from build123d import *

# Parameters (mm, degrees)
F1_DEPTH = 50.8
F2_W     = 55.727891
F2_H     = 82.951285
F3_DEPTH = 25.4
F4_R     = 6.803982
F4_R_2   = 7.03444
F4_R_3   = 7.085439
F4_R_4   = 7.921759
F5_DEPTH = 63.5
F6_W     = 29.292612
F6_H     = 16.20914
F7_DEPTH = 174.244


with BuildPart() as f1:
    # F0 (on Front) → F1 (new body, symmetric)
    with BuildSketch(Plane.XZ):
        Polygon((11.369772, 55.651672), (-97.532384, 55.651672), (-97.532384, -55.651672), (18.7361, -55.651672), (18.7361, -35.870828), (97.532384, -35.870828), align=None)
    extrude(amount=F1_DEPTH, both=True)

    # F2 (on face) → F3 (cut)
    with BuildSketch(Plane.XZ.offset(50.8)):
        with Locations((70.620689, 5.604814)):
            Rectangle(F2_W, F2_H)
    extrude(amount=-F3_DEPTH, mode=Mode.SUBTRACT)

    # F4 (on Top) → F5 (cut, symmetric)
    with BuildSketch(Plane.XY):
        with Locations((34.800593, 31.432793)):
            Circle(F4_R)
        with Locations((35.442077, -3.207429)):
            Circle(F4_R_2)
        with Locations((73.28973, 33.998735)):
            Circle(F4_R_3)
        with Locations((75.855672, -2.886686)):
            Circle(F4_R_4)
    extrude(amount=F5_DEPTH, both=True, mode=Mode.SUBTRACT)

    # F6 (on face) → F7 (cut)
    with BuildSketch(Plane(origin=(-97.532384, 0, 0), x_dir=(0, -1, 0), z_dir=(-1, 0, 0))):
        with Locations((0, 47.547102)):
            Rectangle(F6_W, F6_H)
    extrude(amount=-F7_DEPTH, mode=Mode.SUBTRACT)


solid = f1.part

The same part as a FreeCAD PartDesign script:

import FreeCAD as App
import Part
import Sketcher

V = App.Vector
Q = App.Units.Quantity

doc = App.newDocument("Part")
body = doc.addObject("PartDesign::Body", "Body")

# Sketch on XZ plane
sketch1 = body.newObject("Sketcher::SketchObject", "Sketch")
sketch1.AttachmentSupport = (doc.getObject("XZ_Plane"), [""])
sketch1.MapMode = "FlatFace"
sketch1.addGeometry(Part.LineSegment(V(11.369772, 55.651672, 0), V(-97.532384, 55.651672, 0)), False)
sketch1.addGeometry(Part.LineSegment(V(-97.532384, 55.651672, 0), V(-97.532384, -55.651672, 0)), False)
sketch1.addGeometry(Part.LineSegment(V(-97.532384, -55.651672, 0), V(18.7361, -55.651672, 0)), False)
sketch1.addGeometry(Part.LineSegment(V(18.7361, -55.651672, 0), V(18.7361, -35.870828, 0)), False)
sketch1.addGeometry(Part.LineSegment(V(18.7361, -35.870828, 0), V(97.532384, -35.870828, 0)), False)
sketch1.addGeometry(Part.LineSegment(V(97.532384, -35.870828, 0), V(11.369772, 55.651672, 0)), False)
sketch1.addConstraint(Sketcher.Constraint("Coincident", 0, 2, 1, 1))
sketch1.addConstraint(Sketcher.Constraint("Coincident", 1, 2, 2, 1))
sketch1.addConstraint(Sketcher.Constraint("Coincident", 2, 2, 3, 1))
sketch1.addConstraint(Sketcher.Constraint("Coincident", 3, 2, 4, 1))
sketch1.addConstraint(Sketcher.Constraint("Coincident", 4, 2, 5, 1))
sketch1.addConstraint(Sketcher.Constraint("Coincident", 5, 2, 0, 1))
sketch1.addConstraint(Sketcher.Constraint("Horizontal", 0))
sketch1.addConstraint(Sketcher.Constraint("Vertical", 1))
sketch1.addConstraint(Sketcher.Constraint("Horizontal", 2))
sketch1.addConstraint(Sketcher.Constraint("Vertical", 3))
sketch1.addConstraint(Sketcher.Constraint("Horizontal", 4))
sketch1.addConstraint(Sketcher.Constraint("DistanceX", -1, 1, 2, 2, Q("18.7361 mm")))
sketch1.addConstraint(Sketcher.Constraint("DistanceY", 3, 2, 0, 2, Q("91.5225 mm")))
sketch1.addConstraint(Sketcher.Constraint("DistanceX", 0, 2, 0, 1, Q("108.902156 mm")))
sketch1.addConstraint(Sketcher.Constraint("DistanceX", 2, 1, 2, 2, Q("116.268484 mm")))
sketch1.addConstraint(Sketcher.Constraint("DistanceX", 4, 1, 4, 2, Q("78.796284 mm")))
sketch1.addConstraint(Sketcher.Constraint("DistanceY", 1, 2, 1, 1, Q("111.303344 mm")))
sketch1.addConstraint(Sketcher.Constraint("DistanceY", -1, 1, 0, 2, Q("55.651672 mm")))
pad1 = body.newObject("PartDesign::Pad", "Pad")
pad1.Profile = sketch1
pad1.Length = Q("4 in")
pad1.Midplane = True

# Sketch on XZ plane
sketch2 = body.newObject("Sketcher::SketchObject", "Sketch001")
sketch2.AttachmentSupport = (doc.getObject("XZ_Plane"), [""])
sketch2.MapMode = "FlatFace"
sketch2.AttachmentOffset = App.Placement(V(0, 0, 2 * 25.4), App.Rotation())
sketch2.addGeometry(Part.LineSegment(V(42.756743, 47.080456, 0), V(42.756743, -35.870829, 0)), False)
sketch2.addGeometry(Part.LineSegment(V(42.756743, -35.870829, 0), V(98.484634, -35.870829, 0)), False)
sketch2.addGeometry(Part.LineSegment(V(98.484634, -35.870829, 0), V(98.484634, 47.080456, 0)), False)
sketch2.addGeometry(Part.LineSegment(V(98.484634, 47.080456, 0), V(42.756743, 47.080456, 0)), False)
sketch2.addConstraint(Sketcher.Constraint("Coincident", 0, 2, 1, 1))
sketch2.addConstraint(Sketcher.Constraint("Coincident", 1, 2, 2, 1))
sketch2.addConstraint(Sketcher.Constraint("Coincident", 2, 2, 3, 1))
sketch2.addConstraint(Sketcher.Constraint("Coincident", 3, 2, 0, 1))
sketch2.addConstraint(Sketcher.Constraint("Vertical", 0))
sketch2.addConstraint(Sketcher.Constraint("Horizontal", 1))
sketch2.addConstraint(Sketcher.Constraint("Vertical", 2))
sketch2.addConstraint(Sketcher.Constraint("Horizontal", 3))
sketch2.addConstraint(Sketcher.Constraint("DistanceX", 1, 1, 1, 2, Q("55.727891 mm")))
sketch2.addConstraint(Sketcher.Constraint("DistanceY", 0, 2, 0, 1, Q("82.951285 mm")))
sketch2.addConstraint(Sketcher.Constraint("DistanceY", 0, 2, -1, 1, Q("35.870829 mm")))
sketch2.addConstraint(Sketcher.Constraint("DistanceX", -1, 1, 0, 2, Q("42.756743 mm")))
pocket1 = body.newObject("PartDesign::Pocket", "Pocket")
pocket1.Profile = sketch2
pocket1.Length = Q("1 in")

# Sketch on XY plane
sketch3 = body.newObject("Sketcher::SketchObject", "Sketch002")
sketch3.AttachmentSupport = (doc.getObject("XY_Plane"), [""])
sketch3.MapMode = "FlatFace"
sketch3.addGeometry(Part.Circle(V(34.800593, 31.432793, 0), V(0, 0, 1), 6.803982), False)
sketch3.addGeometry(Part.Circle(V(35.442077, -3.207429, 0), V(0, 0, 1), 7.03444), False)
sketch3.addGeometry(Part.Circle(V(73.28973, 33.998735, 0), V(0, 0, 1), 7.085439), False)
sketch3.addGeometry(Part.Circle(V(75.855672, -2.886686, 0), V(0, 0, 1), 7.921759), False)
sketch3.addConstraint(Sketcher.Constraint("Diameter", 1, Q("14.06888 mm")))
sketch3.addConstraint(Sketcher.Constraint("Diameter", 0, Q("13.607964 mm")))
sketch3.addConstraint(Sketcher.Constraint("Diameter", 2, Q("14.170878 mm")))
sketch3.addConstraint(Sketcher.Constraint("Diameter", 3, Q("15.843518 mm")))
sketch3.addConstraint(Sketcher.Constraint("DistanceY", 1, 3, -1, 1, Q("3.207429 mm")))
sketch3.addConstraint(Sketcher.Constraint("DistanceX", -1, 1, 2, 3, Q("73.28973 mm")))
sketch3.addConstraint(Sketcher.Constraint("DistanceX", -1, 1, 3, 3, Q("75.855672 mm")))
sketch3.addConstraint(Sketcher.Constraint("DistanceY", 3, 3, 2, 3, Q("36.885421 mm")))
sketch3.addConstraint(Sketcher.Constraint("DistanceX", 0, 3, 3, 3, Q("41.055079 mm")))
sketch3.addConstraint(Sketcher.Constraint("DistanceY", 3, 3, 0, 3, Q("34.319479 mm")))
sketch3.addConstraint(Sketcher.Constraint("DistanceY", -1, 1, 0, 3, Q("31.432793 mm")))
sketch3.addConstraint(Sketcher.Constraint("DistanceX", -1, 1, 1, 3, Q("35.442077 mm")))
pocket2 = body.newObject("PartDesign::Pocket", "Pocket001")
pocket2.Profile = sketch3
pocket2.Length = Q("5 in")
pocket2.Midplane = True

# Sketch on YZ plane
sketch4 = body.newObject("Sketcher::SketchObject", "Sketch003")
sketch4.AttachmentSupport = (doc.getObject("YZ_Plane"), [""])
sketch4.MapMode = "FlatFace"
sketch4.AttachmentOffset = App.Placement(V(0, 0, -97.532384), App.Rotation())
sketch4.addGeometry(Part.LineSegment(V(14.646306, 55.651672, 0), V(14.646306, 39.442532, 0)), False)
sketch4.addGeometry(Part.LineSegment(V(14.646306, 39.442532, 0), V(-14.646306, 39.442532, 0)), False)
sketch4.addGeometry(Part.LineSegment(V(-14.646306, 39.442532, 0), V(-14.646306, 55.651672, 0)), False)
sketch4.addGeometry(Part.LineSegment(V(-14.646306, 55.651672, 0), V(14.646306, 55.651672, 0)), False)
sketch4.addConstraint(Sketcher.Constraint("Coincident", 0, 2, 1, 1))
sketch4.addConstraint(Sketcher.Constraint("Coincident", 1, 2, 2, 1))
sketch4.addConstraint(Sketcher.Constraint("Coincident", 2, 2, 3, 1))
sketch4.addConstraint(Sketcher.Constraint("Coincident", 3, 2, 0, 1))
sketch4.addConstraint(Sketcher.Constraint("Vertical", 0))
sketch4.addConstraint(Sketcher.Constraint("Horizontal", 1))
sketch4.addConstraint(Sketcher.Constraint("Vertical", 2))
sketch4.addConstraint(Sketcher.Constraint("Horizontal", 3))
sketch4.addConstraint(Sketcher.Constraint("DistanceX", 1, 2, 1, 1, Q("29.292612 mm")))
sketch4.addConstraint(Sketcher.Constraint("DistanceY", 0, 2, 0, 1, Q("16.20914 mm")))
sketch4.addConstraint(Sketcher.Constraint("DistanceY", -1, 1, 2, 2, Q("55.651672 mm")))
sketch4.addConstraint(Sketcher.Constraint("DistanceX", -1, 1, 0, 2, Q("14.646306 mm")))
pocket3 = body.newObject("PartDesign::Pocket", "Pocket002")
pocket3.Profile = sketch4
pocket3.Length = Q("6.86 in")
pocket3.Reversed = True

doc.recompute()
